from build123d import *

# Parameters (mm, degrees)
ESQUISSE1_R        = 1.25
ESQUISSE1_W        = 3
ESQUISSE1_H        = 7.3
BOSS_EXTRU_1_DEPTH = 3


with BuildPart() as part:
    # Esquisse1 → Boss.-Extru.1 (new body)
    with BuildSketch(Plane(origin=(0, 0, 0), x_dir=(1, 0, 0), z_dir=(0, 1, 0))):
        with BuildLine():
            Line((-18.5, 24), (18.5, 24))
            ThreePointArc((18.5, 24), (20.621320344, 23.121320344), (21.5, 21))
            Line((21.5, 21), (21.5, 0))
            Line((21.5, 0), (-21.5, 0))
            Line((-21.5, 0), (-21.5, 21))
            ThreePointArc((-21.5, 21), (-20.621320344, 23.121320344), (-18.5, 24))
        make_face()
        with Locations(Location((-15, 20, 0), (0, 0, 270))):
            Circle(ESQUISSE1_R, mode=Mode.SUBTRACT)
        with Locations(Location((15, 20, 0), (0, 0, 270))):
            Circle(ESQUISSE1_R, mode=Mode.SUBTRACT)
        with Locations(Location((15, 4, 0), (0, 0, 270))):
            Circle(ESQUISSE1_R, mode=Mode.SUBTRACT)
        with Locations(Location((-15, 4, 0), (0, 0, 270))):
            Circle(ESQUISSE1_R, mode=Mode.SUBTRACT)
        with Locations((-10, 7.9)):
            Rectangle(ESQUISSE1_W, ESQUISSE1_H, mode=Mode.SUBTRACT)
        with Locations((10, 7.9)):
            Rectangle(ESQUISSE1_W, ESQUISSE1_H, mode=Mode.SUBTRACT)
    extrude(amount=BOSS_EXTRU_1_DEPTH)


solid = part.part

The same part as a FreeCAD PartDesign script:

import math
import FreeCAD as App
import Part
import Sketcher
from FreeCAD import Vector

doc = App.newDocument("Part")
body = doc.addObject("PartDesign::Body", "Body")

sketch1 = body.newObject("Sketcher::SketchObject", "Sketch")
sketch1.AttachmentSupport = (doc.getObject("XZ_Plane"), [""])
sketch1.MapMode = "FlatFace"
sketch1.addGeometry([
    Part.LineSegment(Vector(18.5, -24, 0), Vector(-18.5, -24, 0)),
    Part.ArcOfCircle(Part.Circle(Vector(-18.5, -21, 0), Vector(0, 0, 1), 3), math.radians(180), math.radians(270)),
    Part.LineSegment(Vector(-21.5, -21, 0), Vector(-21.5, 0, 0)),
    Part.LineSegment(Vector(-21.5, 0, 0), Vector(21.5, 0, 0)),
    Part.LineSegment(Vector(21.5, 0, 0), Vector(21.5, -21, 0)),
    Part.ArcOfCircle(Part.Circle(Vector(18.5, -21, 0), Vector(0, 0, 1), 3), math.radians(-90), math.radians(0)),
    Part.Circle(Vector(15, -4, 0), Vector(0, 0, 1), 1.2),
    Part.LineSegment(Vector(8.5, -4.2, 0), Vector(8.5, -11.6, 0)),
    Part.LineSegment(Vector(8.5, -11.6, 0), Vector(11.5, -11.6, 0)),
    Part.LineSegment(Vector(11.5, -11.6, 0), Vector(11.5, -4.2, 0)),
    Part.LineSegment(Vector(11.5, -4.2, 0), Vector(8.5, -4.2, 0)),
    Part.Circle(Vector(-15, -4, 0), Vector(0, 0, 1), 1.2),
    Part.LineSegment(Vector(-11.5, -4.2, 0), Vector(-11.5, -11.6, 0)),
    Part.LineSegment(Vector(-11.5, -11.6, 0), Vector(-8.5, -11.6, 0)),
    Part.LineSegment(Vector(-8.5, -11.6, 0), Vector(-8.5, -4.2, 0)),
    Part.LineSegment(Vector(-8.5, -4.2, 0), Vector(-11.5, -4.2, 0)),
    Part.Circle(Vector(15, -20, 0), Vector(0, 0, 1), 1.2),
    Part.Circle(Vector(-15, -20, 0), Vector(0, 0, 1), 1.2),
], False)
sketch1.addConstraint([
    Sketcher.Constraint("Tangent", 0, 2, 1, 2),
    Sketcher.Constraint("Tangent", 1, 1, 2, 1),
    Sketcher.Constraint("Coincident", 2, 2, 3, 1),
    Sketcher.Constraint("Coincident", 3, 2, 4, 1),
    Sketcher.Constraint("Tangent", 4, 2, 5, 2),
    Sketcher.Constraint("Tangent", 5, 1, 0, 1),
    Sketcher.Constraint("Coincident", 7, 2, 8, 1),
    Sketcher.Constraint("Coincident", 8, 2, 9, 1),
    Sketcher.Constraint("Coincident", 9, 2, 10, 1),
    Sketcher.Constraint("Coincident", 10, 2, 7, 1),
    Sketcher.Constraint("Coincident", 12, 2, 13, 1),
    Sketcher.Constraint("Coincident", 13, 2, 14, 1),
    Sketcher.Constraint("Coincident", 14, 2, 15, 1),
    Sketcher.Constraint("Coincident", 15, 2, 12, 1),
    Sketcher.Constraint("Horizontal", 0),
    Sketcher.Constraint("Vertical", 2),
    Sketcher.Constraint("Horizontal", 3),
    Sketcher.Constraint("Vertical", 4),
    Sketcher.Constraint("Vertical", 7),
    Sketcher.Constraint("Horizontal", 8),
    Sketcher.Constraint("Vertical", 9),
    Sketcher.Constraint("Horizontal", 10),
    Sketcher.Constraint("Vertical", 12),
    Sketcher.Constraint("Horizontal", 13),
    Sketcher.Constraint("Vertical", 14),
    Sketcher.Constraint("Horizontal", 15),
    Sketcher.Constraint("Equal", 1, 5),
    Sketcher.Constraint("Equal", 6, 11),
    Sketcher.Constraint("Equal", 11, 16),
    Sketcher.Constraint("Equal", 16, 17),
    Sketcher.Constraint("Symmetric", 2, 2, 3, 2, -1, 1),
    Sketcher.Constraint("Symmetric", 6, 3, 11, 3, -2),
    Sketcher.Constraint("Symmetric", 16, 3, 17, 3, -2),
    Sketcher.Constraint("Symmetric", 8, 2, 12, 2, -2),
    Sketcher.Constraint("Symmetric", 10, 2, 14, 2, -2),
    Sketcher.Constraint("Vertical", 6, 3, 16, 3),
    Sketcher.Constraint("Radius", 1, 3.0),
    Sketcher.Constraint("Diameter", 6, 2.5),
    Sketcher.Constraint("DistanceX", 0, 2, 0, 1, 37.0),
    Sketcher.Constraint("DistanceX", 8, 1, 8, 2, 3.0),
    Sketcher.Constraint("DistanceY", 2, 1, 2, 2, 21.0),
    Sketcher.Constraint("DistanceY", 7, 2, 7, 1, 7.3),
    Sketcher.Constraint("DistanceX", -1, 1, 6, 3, 15.0),
    Sketcher.Constraint("DistanceY", 6, 3, -1, 1, 4.0),
    Sketcher.Constraint("DistanceY", 16, 3, -1, 1, 20.0),
    Sketcher.Constraint("DistanceX", 7, 2, 5, 3, 10.0),
    Sketcher.Constraint("DistanceY", 7, 2, -1, 1, 11.55),
])
pad1 = body.newObject("PartDesign::Pad", "Pad")
pad1.Profile = sketch1
pad1.Length = 3
pad1.Reversed = True

doc.recompute()
